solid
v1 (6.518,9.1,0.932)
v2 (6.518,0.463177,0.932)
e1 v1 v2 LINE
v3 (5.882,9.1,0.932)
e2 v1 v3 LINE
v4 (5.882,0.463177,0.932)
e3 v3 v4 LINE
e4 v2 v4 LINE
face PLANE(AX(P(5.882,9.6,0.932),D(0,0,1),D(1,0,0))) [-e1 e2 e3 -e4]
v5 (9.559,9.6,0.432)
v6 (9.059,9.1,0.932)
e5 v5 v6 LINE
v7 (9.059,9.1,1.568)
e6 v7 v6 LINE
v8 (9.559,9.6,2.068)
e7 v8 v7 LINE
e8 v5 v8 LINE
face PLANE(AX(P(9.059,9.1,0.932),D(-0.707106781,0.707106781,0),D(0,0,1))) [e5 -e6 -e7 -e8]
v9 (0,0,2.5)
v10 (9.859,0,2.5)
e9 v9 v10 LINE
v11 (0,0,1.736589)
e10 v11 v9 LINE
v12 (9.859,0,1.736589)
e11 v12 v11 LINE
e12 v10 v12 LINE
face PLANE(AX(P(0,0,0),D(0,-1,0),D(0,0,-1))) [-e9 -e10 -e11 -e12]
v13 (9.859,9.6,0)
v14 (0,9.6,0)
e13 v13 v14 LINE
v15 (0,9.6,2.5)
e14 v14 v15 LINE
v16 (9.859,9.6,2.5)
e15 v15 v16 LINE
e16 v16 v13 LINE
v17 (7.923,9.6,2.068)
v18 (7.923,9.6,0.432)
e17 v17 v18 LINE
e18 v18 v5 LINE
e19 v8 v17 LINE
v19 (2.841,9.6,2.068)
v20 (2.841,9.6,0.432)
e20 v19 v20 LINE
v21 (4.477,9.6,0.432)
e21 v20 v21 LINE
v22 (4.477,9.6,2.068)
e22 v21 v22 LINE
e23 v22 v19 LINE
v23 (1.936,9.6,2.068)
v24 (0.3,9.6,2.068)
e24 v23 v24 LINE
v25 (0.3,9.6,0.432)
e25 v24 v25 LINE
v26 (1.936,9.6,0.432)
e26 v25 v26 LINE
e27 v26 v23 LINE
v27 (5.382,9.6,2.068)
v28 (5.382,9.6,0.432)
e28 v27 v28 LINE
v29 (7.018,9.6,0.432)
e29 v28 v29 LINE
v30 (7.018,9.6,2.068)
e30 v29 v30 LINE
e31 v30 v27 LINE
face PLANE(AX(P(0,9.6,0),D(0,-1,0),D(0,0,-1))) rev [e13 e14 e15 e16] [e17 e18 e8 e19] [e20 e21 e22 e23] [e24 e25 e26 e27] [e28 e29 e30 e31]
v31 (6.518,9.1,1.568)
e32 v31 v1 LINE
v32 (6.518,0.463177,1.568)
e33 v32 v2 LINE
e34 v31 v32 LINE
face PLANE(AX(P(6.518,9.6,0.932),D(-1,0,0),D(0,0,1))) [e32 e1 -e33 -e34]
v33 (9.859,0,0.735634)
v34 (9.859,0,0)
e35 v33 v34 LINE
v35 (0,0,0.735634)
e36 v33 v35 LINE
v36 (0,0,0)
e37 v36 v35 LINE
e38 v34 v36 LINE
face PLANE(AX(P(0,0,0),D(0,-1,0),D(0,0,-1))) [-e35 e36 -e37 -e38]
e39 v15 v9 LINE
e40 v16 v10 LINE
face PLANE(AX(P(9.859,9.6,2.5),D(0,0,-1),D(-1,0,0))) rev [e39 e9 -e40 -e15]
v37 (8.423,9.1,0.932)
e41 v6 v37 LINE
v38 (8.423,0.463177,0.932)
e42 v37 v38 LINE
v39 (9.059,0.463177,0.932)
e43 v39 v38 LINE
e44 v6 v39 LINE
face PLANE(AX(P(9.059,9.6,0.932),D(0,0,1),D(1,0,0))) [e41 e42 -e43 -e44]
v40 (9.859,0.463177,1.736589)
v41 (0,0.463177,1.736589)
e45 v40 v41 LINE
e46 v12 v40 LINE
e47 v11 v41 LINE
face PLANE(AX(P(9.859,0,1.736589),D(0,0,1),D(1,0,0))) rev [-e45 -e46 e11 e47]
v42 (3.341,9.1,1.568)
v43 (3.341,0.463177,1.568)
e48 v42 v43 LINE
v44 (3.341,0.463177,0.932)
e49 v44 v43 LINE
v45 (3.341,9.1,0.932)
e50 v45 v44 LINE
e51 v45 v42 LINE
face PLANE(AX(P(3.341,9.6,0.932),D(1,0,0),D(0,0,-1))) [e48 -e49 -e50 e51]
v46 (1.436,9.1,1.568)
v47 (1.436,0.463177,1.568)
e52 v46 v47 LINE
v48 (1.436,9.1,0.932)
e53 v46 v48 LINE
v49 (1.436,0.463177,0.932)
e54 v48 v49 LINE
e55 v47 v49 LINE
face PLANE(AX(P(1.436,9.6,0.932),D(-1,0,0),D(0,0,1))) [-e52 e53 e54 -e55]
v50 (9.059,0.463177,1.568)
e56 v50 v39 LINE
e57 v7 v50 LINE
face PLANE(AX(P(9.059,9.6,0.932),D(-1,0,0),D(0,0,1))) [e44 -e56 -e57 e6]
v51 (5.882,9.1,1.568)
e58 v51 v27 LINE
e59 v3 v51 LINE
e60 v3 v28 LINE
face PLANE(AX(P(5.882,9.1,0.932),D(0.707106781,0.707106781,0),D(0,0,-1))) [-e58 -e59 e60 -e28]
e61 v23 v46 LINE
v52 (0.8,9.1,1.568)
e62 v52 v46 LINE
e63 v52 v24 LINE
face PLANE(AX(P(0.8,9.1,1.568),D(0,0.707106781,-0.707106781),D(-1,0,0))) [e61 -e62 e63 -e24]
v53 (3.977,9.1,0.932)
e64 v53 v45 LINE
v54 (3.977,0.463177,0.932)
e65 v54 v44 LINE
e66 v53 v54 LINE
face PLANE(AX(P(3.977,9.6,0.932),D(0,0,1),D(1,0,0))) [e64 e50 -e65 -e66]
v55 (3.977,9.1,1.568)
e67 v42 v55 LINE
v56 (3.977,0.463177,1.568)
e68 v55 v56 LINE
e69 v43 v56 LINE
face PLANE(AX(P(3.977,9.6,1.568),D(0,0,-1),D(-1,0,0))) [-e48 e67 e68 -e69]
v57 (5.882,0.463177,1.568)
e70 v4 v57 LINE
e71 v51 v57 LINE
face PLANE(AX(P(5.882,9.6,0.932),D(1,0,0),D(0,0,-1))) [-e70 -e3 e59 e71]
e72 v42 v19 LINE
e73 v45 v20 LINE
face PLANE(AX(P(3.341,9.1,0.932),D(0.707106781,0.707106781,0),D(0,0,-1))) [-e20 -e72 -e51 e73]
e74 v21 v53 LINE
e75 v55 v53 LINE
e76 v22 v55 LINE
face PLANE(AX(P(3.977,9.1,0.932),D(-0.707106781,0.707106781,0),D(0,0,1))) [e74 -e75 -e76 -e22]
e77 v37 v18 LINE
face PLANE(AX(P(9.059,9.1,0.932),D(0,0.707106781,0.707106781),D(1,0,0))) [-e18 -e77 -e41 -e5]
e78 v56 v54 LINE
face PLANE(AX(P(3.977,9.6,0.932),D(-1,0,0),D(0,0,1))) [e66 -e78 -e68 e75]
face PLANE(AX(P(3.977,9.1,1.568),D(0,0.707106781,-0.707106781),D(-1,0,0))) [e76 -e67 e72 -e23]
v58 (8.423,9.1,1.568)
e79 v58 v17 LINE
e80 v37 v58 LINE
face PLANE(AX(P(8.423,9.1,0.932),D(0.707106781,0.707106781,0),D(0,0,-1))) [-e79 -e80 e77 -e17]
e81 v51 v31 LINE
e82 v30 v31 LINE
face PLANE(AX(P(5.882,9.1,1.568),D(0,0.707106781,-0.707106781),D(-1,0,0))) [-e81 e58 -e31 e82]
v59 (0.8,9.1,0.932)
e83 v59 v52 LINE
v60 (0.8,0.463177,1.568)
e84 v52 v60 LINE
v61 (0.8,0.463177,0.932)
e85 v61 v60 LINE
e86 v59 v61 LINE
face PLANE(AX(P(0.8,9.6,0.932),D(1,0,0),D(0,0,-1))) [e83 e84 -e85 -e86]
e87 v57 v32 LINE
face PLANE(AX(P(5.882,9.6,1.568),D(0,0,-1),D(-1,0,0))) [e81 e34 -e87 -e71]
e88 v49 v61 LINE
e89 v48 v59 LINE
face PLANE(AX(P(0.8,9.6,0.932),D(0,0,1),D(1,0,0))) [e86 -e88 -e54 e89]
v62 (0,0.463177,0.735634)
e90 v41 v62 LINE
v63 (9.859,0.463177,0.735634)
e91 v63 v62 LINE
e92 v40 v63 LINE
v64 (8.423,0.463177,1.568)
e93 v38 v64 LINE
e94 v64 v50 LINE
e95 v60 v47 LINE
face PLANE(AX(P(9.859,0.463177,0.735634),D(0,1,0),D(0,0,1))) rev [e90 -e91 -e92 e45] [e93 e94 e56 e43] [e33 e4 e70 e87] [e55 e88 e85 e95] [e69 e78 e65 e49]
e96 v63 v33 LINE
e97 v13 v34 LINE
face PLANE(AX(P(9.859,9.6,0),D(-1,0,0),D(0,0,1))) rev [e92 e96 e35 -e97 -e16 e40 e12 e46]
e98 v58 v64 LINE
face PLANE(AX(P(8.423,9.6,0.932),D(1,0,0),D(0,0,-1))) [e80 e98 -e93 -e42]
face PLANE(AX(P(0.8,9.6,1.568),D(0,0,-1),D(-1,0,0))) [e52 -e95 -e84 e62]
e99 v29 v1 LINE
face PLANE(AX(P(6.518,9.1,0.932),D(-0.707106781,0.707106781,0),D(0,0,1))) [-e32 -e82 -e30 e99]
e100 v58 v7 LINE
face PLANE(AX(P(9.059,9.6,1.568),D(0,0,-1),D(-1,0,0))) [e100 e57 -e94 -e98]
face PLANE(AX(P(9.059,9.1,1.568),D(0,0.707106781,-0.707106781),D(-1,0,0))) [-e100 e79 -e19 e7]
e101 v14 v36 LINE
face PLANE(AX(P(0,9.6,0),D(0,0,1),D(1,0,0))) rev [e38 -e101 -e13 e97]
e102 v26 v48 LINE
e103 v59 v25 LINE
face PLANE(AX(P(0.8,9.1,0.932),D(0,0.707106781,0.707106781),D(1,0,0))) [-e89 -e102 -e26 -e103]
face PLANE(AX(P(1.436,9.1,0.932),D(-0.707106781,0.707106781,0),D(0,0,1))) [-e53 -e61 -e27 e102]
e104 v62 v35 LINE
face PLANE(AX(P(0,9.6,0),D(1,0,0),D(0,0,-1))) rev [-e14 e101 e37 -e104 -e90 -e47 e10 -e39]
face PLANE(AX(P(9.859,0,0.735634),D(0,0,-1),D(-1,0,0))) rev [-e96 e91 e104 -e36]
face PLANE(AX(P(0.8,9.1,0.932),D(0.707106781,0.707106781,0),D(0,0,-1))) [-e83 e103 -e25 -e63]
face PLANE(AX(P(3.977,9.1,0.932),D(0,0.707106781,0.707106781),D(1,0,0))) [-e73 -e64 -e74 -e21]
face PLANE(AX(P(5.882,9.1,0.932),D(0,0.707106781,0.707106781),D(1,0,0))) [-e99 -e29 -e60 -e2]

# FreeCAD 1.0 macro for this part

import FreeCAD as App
import Part
import Sketcher


def edges_at(feature, points):
    """Names of the edges that pass closest to the given points."""
    edges = feature.Shape.Edges
    near = lambda p: min(range(len(edges)), key=lambda i: edges[i].distToShape(Part.Vertex(*p))[0])
    return sorted({f"Edge{near(p) + 1}" for p in points})

doc = App.newDocument("Part")
params = doc.addObject("Spreadsheet::Sheet", "Params")
for row, (alias, value) in enumerate([
    ("sketch1_height", "2.5 mm"),
    ("pad1_length", "9.6 mm"),
    ("chamfer_size", "0.5 mm"),
    ("chamfer2_size", "0.5 mm"),
], start=1):
    params.set(f"A{row}", alias)
    params.set(f"B{row}", "=" + value)
    params.setAlias(f"B{row}", alias)

body = doc.addObject("PartDesign::Body", "Body")

# Sketch on XZ plane
sketch1 = body.newObject("Sketcher::SketchObject", "Sketch")
sketch1.AttachmentSupport = (doc.getObject("XZ_Plane"), [""])
sketch1.MapMode = "FlatFace"
sketch1.addGeometry(Part.LineSegment(App.Vector(0, 0, 0), App.Vector(0, 2.5, 0)), False)
sketch1.addGeometry(Part.LineSegment(App.Vector(0, 2.5, 0), App.Vector(9.9, 2.5, 0)), False)
sketch1.addGeometry(Part.LineSegment(App.Vector(9.9, 2.5, 0), App.Vector(9.9, 0, 0)), False)
sketch1.addGeometry(Part.LineSegment(App.Vector(9.9, 0, 0), App.Vector(0, 0, 0)), False)
sketch1.addGeometry(Part.LineSegment(App.Vector(1.4, 1.6, 0), App.Vector(0.8, 1.6, 0)), False)
sketch1.addGeometry(Part.LineSegment(App.Vector(0.8, 1.6, 0), App.Vector(0.8, 0.9, 0)), False)
sketch1.addGeometry(Part.LineSegment(App.Vector(0.8, 0.9, 0), App.Vector(1.4, 0.9, 0)), False)
sketch1.addGeometry(Part.LineSegment(App.Vector(1.4, 0.9, 0), App.Vector(1.4, 1.6, 0)), False)
sketch1.addGeometry(Part.LineSegment(App.Vector(4, 1.6, 0), App.Vector(3.3, 1.6, 0)), False)
sketch1.addGeometry(Part.LineSegment(App.Vector(3.3, 1.6, 0), App.Vector(3.3, 0.9, 0)), False)
sketch1.addGeometry(Part.LineSegment(App.Vector(3.3, 0.9, 0), App.Vector(4, 0.9, 0)), False)
sketch1.addGeometry(Part.LineSegment(App.Vector(4, 0.9, 0), App.Vector(4, 1.6, 0)), False)
sketch1.addGeometry(Part.LineSegment(App.Vector(6.5, 1.6, 0), App.Vector(5.9, 1.6, 0)), False)
sketch1.addGeometry(Part.LineSegment(App.Vector(5.9, 1.6, 0), App.Vector(5.9, 0.9, 0)), False)
sketch1.addGeometry(Part.LineSegment(App.Vector(5.9, 0.9, 0), App.Vector(6.5, 0.9, 0)), False)
sketch1.addGeometry(Part.LineSegment(App.Vector(6.5, 0.9, 0), App.Vector(6.5, 1.6, 0)), False)
sketch1.addGeometry(Part.LineSegment(App.Vector(9.1, 1.6, 0), App.Vector(8.4, 1.6, 0)), False)
sketch1.addGeometry(Part.LineSegment(App.Vector(8.4, 1.6, 0), App.Vector(8.4, 0.9, 0)), False)
sketch1.addGeometry(Part.LineSegment(App.Vector(8.4, 0.9, 0), App.Vector(9.1, 0.9, 0)), False)
sketch1.addGeometry(Part.LineSegment(App.Vector(9.1, 0.9, 0), App.Vector(9.1, 1.6, 0)), False)
sketch1.addConstraint(Sketcher.Constraint("Coincident", 0, 2, 1, 1))
sketch1.addConstraint(Sketcher.Constraint("Coincident", 1, 2, 2, 1))
sketch1.addConstraint(Sketcher.Constraint("Coincident", 2, 2, 3, 1))
sketch1.addConstraint(Sketcher.Constraint("Coincident", 3, 2, 0, 1))
sketch1.addConstraint(Sketcher.Constraint("Coincident", 4, 2, 5, 1))
sketch1.addConstraint(Sketcher.Constraint("Coincident", 5, 2, 6, 1))
sketch1.addConstraint(Sketcher.Constraint("Coincident", 6, 2, 7, 1))
sketch1.addConstraint(Sketcher.Constraint("Coincident", 7, 2, 4, 1))
sketch1.addConstraint(Sketcher.Constraint("Coincident", 8, 2, 9, 1))
sketch1.addConstraint(Sketcher.Constraint("Coincident", 9, 2, 10, 1))
sketch1.addConstraint(Sketcher.Constraint("Coincident", 10, 2, 11, 1))
sketch1.addConstraint(Sketcher.Constraint("Coincident", 11, 2, 8, 1))
sketch1.addConstraint(Sketcher.Constraint("Coincident", 12, 2, 13, 1))
sketch1.addConstraint(Sketcher.Constraint("Coincident", 13, 2, 14, 1))
sketch1.addConstraint(Sketcher.Constraint("Coincident", 14, 2, 15, 1))
sketch1.addConstraint(Sketcher.Constraint("Coincident", 15, 2, 12, 1))
sketch1.addConstraint(Sketcher.Constraint("Coincident", 16, 2, 17, 1))
sketch1.addConstraint(Sketcher.Constraint("Coincident", 17, 2, 18, 1))
sketch1.addConstraint(Sketcher.Constraint("Coincident", 18, 2, 19, 1))
sketch1.addConstraint(Sketcher.Constraint("Coincident", 19, 2, 16, 1))
sketch1.addConstraint(Sketcher.Constraint("Vertical", 0))
sketch1.addConstraint(Sketcher.Constraint("Horizontal", 1))
sketch1.addConstraint(Sketcher.Constraint("Vertical", 2))
sketch1.addConstraint(Sketcher.Constraint("Horizontal", 3))
sketch1.addConstraint(Sketcher.Constraint("Horizontal", 4))
sketch1.addConstraint(Sketcher.Constraint("Vertical", 5))
sketch1.addConstraint(Sketcher.Constraint("Horizontal", 6))
sketch1.addConstraint(Sketcher.Constraint("Vertical", 7))
sketch1.addConstraint(Sketcher.Constraint("Horizontal", 8))
sketch1.addConstraint(Sketcher.Constraint("Vertical", 9))
sketch1.addConstraint(Sketcher.Constraint("Horizontal", 10))
sketch1.addConstraint(Sketcher.Constraint("Vertical", 11))
sketch1.addConstraint(Sketcher.Constraint("Horizontal", 12))
sketch1.addConstraint(Sketcher.Constraint("Vertical", 13))
sketch1.addConstraint(Sketcher.Constraint("Horizontal", 14))
sketch1.addConstraint(Sketcher.Constraint("Vertical", 15))
sketch1.addConstraint(Sketcher.Constraint("Horizontal", 16))
sketch1.addConstraint(Sketcher.Constraint("Vertical", 17))
sketch1.addConstraint(Sketcher.Constraint("Horizontal", 18))
sketch1.addConstraint(Sketcher.Constraint("Vertical", 19))
sketch1.addConstraint(Sketcher.Constraint("Coincident", 3, 2, -1, 1))
sketch1.addConstraint(Sketcher.Constraint("Horizontal", 7, 2, 8, 2))
sketch1.addConstraint(Sketcher.Constraint("Horizontal", 6, 2, 9, 2))
sketch1.addConstraint(Sketcher.Constraint("Horizontal", 11, 2, 12, 2))
sketch1.addConstraint(Sketcher.Constraint("Horizontal", 10, 2, 13, 2))
sketch1.addConstraint(Sketcher.Constraint("Horizontal", 15, 2, 16, 2))
sketch1.addConstraint(Sketcher.Constraint("Horizontal", 14, 2, 17, 2))
sketch1.addConstraint(Sketcher.Constraint("Equal", 6, 8))
sketch1.addConstraint(Sketcher.Constraint("Equal", 10, 12))
sketch1.addConstraint(Sketcher.Constraint("Equal", 14, 16))
sketch1.addConstraint(Sketcher.Constraint("Equal", 18, 5))
sketch1.addConstraint(Sketcher.Constraint("DistanceY", 0, 1, 0, 2, 2.5))
sketch1.addConstraint(Sketcher.Constraint("DistanceX", -1, 1, 4, 2, 0.8))
sketch1.addConstraint(Sketcher.Constraint("DistanceX", 18, 2, 2, 2, 0.8))
sketch1.addConstraint(Sketcher.Constraint("DistanceX", 1, 1, 1, 2, 9.859))
sketch1.addConstraint(Sketcher.Constraint("DistanceX", 4, 2, 4, 1, 0.636))
sketch1.addConstraint(Sketcher.Constraint("DistanceY", -1, 1, 4, 2, 1.568))
sketch1.addConstraint(Sketcher.Constraint("DistanceX", -1, 1, 8, 2, 3.341))
sketch1.addConstraint(Sketcher.Constraint("DistanceX", -1, 1, 12, 2, 5.882))
sketch1.setExpression("Constraints[51]", "Params.sketch1_height")
pad1 = body.newObject("PartDesign::Pad", "Pad")
pad1.Profile = sketch1
pad1.setExpression("Length", "Params.pad1_length")
pad1.Reversed = True
doc.recompute()

chamfer = body.newObject("PartDesign::Chamfer", "Chamfer")
chamfer.Base = (pad1, edges_at(pad1, [
    (0.8, 9.6, 1.25),
    (1.118, 9.6, 1.568),
    (1.436, 9.6, 1.25),
    (1.118, 9.6, 0.932),
]))
chamfer.setExpression("Size", "Params.chamfer_size")
doc.recompute()

chamfer2 = body.newObject("PartDesign::Chamfer", "Chamfer001")
chamfer2.Base = (chamfer, edges_at(chamfer, [
    (3.659, 9.6, 0.932),
    (3.341, 9.6, 1.25),
    (3.659, 9.6, 1.568),
    (3.977, 9.6, 1.25),
    (8.741, 9.6, 0.932),
    (8.423, 9.6, 1.25),
    (8.741, 9.6, 1.568),
    (9.059, 9.6, 1.25),
    (6.2, 9.6, 0.932),
    (5.882, 9.6, 1.25),
    (6.2, 9.6, 1.568),
    (6.518, 9.6, 1.25),
]))
chamfer2.setExpression("Size", "Params.chamfer2_size")

# Sketch on YZ plane
sketch2 = body.newObject("Sketcher::SketchObject", "Sketch001")
sketch2.AttachmentSupport = (doc.getObject("YZ_Plane"), [""])
sketch2.MapMode = "FlatFace"
sketch2.addGeometry(Part.LineSegment(App.Vector(0.46, 0.74, 0), App.Vector(0, 0.74, 0)), False)
sketch2.addGeometry(Part.LineSegment(App.Vector(0, 0.74, 0), App.Vector(0, 1.74, 0)), False)
sketch2.addGeometry(Part.LineSegment(App.Vector(0, 1.74, 0), App.Vector(0.46, 1.74, 0)), False)
sketch2.addGeometry(Part.LineSegment(App.Vector(0.46, 1.74, 0), App.Vector(0.46, 0.74, 0)), False)
sketch2.addConstraint(Sketcher.Constraint("Coincident", 0, 2, 1, 1))
sketch2.addConstraint(Sketcher.Constraint("Coincident", 1, 2, 2, 1))
sketch2.addConstraint(Sketcher.Constraint("Coincident", 2, 2, 3, 1))
sketch2.addConstraint(Sketcher.Constraint("Coincident", 3, 2, 0, 1))
sketch2.addConstraint(Sketcher.Constraint("Horizontal", 0))
sketch2.addConstraint(Sketcher.Constraint("Vertical", 1))
sketch2.addConstraint(Sketcher.Constraint("Horizontal", 2))
sketch2.addConstraint(Sketcher.Constraint("Vertical", 3))
sketch2.addConstraint(Sketcher.Constraint("PointOnObject", 0, 2, -2))
sketch2.addConstraint(Sketcher.Constraint("DistanceX", 0, 2, 0, 1, 0.463177))
sketch2.addConstraint(Sketcher.Constraint("DistanceY", 1, 1, 1, 2, 1.000955))
sketch2.addConstraint(Sketcher.Constraint("DistanceY", -1, 1, 1, 2, 1.736589))
pocket1 = body.newObject("PartDesign::Pocket", "Pocket")
pocket1.Profile = sketch2
pocket1.Type = "ThroughAll"
pocket1.Reversed = True

doc.recompute()
